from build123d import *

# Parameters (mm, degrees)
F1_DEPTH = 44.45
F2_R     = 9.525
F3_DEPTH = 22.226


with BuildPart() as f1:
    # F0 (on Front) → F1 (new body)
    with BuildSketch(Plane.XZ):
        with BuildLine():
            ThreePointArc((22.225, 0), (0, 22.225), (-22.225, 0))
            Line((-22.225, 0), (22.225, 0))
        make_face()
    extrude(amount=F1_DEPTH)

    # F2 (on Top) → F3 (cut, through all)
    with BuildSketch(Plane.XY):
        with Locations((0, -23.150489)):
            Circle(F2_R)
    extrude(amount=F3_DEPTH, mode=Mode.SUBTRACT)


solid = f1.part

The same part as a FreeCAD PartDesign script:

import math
import FreeCAD as App
import Part
import Sketcher
Q = App.Units.Quantity

doc = App.newDocument("Part")
params = doc.addObject("Spreadsheet::Sheet", "Params")
for row, (alias, value) in enumerate([
    ("sketch1_radius", "0.875 in"),
    ("pad1_length", "1.75 in"),
    ("sketch2_diameter", "0.75 in"),
], start=1):
    params.set(f"A{row}", alias)
    params.set(f"B{row}", "=" + value)
    params.setAlias(f"B{row}", alias)

body = doc.addObject("PartDesign::Body", "Body")

# Sketch on XZ plane
sketch1 = doc.addObject("Sketcher::SketchObject", "Sketch")
body.addObject(sketch1)
sketch1.AttachmentSupport = (doc.XZ_Plane, [""])
sketch1.MapMode = "FlatFace"
sketch1.addGeometry(Part.ArcOfCircle(Part.Circle(App.Vector(0, 0, 0), App.Vector(0, 0, 1), 22), math.radians(0), math.radians(180)), False)
sketch1.addGeometry(Part.LineSegment(App.Vector(-22, 0, 0), App.Vector(22, 0, 0)), False)
sketch1.addConstraint(Sketcher.Constraint("Coincident", 0, 1, 1, 2))
sketch1.addConstraint(Sketcher.Constraint("Coincident", 1, 1, 0, 2))
sketch1.addConstraint(Sketcher.Constraint("Horizontal", 1))
sketch1.addConstraint(Sketcher.Constraint("Coincident", 0, 3, -1, 1))
sketch1.addConstraint(Sketcher.Constraint("PointOnObject", 0, 1, -1))
sketch1.addConstraint(Sketcher.Constraint("Radius", 0, Q("0.875 in")))
sketch1.setExpression("Constraints[5]", "Params.sketch1_radius")
pad1 = doc.addObject("PartDesign::Pad", "Pad")
body.addObject(pad1)
pad1.Profile = sketch1
pad1.setExpression("Length", "Params.pad1_length")

# Sketch on XY plane
sketch2 = doc.addObject("Sketcher::SketchObject", "Sketch001")
body.addObject(sketch2)
sketch2.AttachmentSupport = (doc.XY_Plane, [""])
sketch2.MapMode = "FlatFace"
sketch2.addGeometry(Part.Circle(App.Vector(0, -23, 0), App.Vector(0, 0, 1), 10), False)
sketch2.addConstraint(Sketcher.Constraint("PointOnObject", 0, 3, -2))
sketch2.addConstraint(Sketcher.Constraint("Diameter", 0, Q("0.75 in")))
sketch2.addConstraint(Sketcher.Constraint("DistanceY", 0, 3, -1, 1, 23.150489))
sketch2.setExpression("Constraints[1]", "Params.sketch2_diameter")
pocket1 = doc.addObject("PartDesign::Pocket", "Pocket")
body.addObject(pocket1)
pocket1.Profile = sketch2
pocket1.Type = "ThroughAll"
pocket1.Reversed = True

doc.recompute()
